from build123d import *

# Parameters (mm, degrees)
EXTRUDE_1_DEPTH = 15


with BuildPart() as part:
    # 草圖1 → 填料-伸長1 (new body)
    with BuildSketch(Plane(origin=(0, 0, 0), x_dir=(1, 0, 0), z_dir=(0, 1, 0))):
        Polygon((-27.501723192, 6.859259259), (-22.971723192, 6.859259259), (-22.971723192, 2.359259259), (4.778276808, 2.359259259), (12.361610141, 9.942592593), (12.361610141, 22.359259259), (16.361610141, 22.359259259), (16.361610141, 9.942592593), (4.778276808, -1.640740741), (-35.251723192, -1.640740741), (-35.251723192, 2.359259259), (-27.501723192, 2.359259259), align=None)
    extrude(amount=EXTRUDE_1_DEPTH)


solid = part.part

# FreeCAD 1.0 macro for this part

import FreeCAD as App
import Part
import Sketcher
from FreeCAD import Vector
Q = App.Units.Quantity

doc = App.newDocument("Part")
body = doc.addObject("PartDesign::Body", "Body")

sketch1 = doc.addObject("Sketcher::SketchObject", "Sketch")
body.addObject(sketch1)
sketch1.AttachmentSupport = (doc.XZ_Plane, [""])
sketch1.MapMode = "FlatFace"
sketch1.addGeometry([
    Part.LineSegment(Vector(-22.971723, -6.859259, 0), Vector(-27.501723, -6.859259, 0)),
    Part.LineSegment(Vector(-27.501723, -6.859259, 0), Vector(-27.501723, -2.359259, 0)),
    Part.LineSegment(Vector(-27.501723, -2.359259, 0), Vector(-35.251723, -2.359259, 0)),
    Part.LineSegment(Vector(-35.251723, -2.359259, 0), Vector(-35.251723, 1.640741, 0)),
    Part.LineSegment(Vector(-35.251723, 1.640741, 0), Vector(4.778277, 1.640741, 0)),
    Part.LineSegment(Vector(4.778277, 1.640741, 0), Vector(16.36161, -9.942593, 0)),
    Part.LineSegment(Vector(16.36161, -9.942593, 0), Vector(16.36161, -22.359259, 0)),
    Part.LineSegment(Vector(16.36161, -22.359259, 0), Vector(12.36161, -22.359259, 0)),
    Part.LineSegment(Vector(12.36161, -22.359259, 0), Vector(12.36161, -9.942593, 0)),
    Part.LineSegment(Vector(12.36161, -9.942593, 0), Vector(4.778277, -2.359259, 0)),
    Part.LineSegment(Vector(4.778277, -2.359259, 0), Vector(-22.971723, -2.359259, 0)),
    Part.LineSegment(Vector(-22.971723, -2.359259, 0), Vector(-22.971723, -6.859259, 0)),
], False)
sketch1.addConstraint([
    Sketcher.Constraint("Coincident", 0, 2, 1, 1),
    Sketcher.Constraint("Coincident", 1, 2, 2, 1),
    Sketcher.Constraint("Coincident", 2, 2, 3, 1),
    Sketcher.Constraint("Coincident", 3, 2, 4, 1),
    Sketcher.Constraint("Coincident", 4, 2, 5, 1),
    Sketcher.Constraint("Coincident", 5, 2, 6, 1),
    Sketcher.Constraint("Coincident", 6, 2, 7, 1),
    Sketcher.Constraint("Coincident", 7, 2, 8, 1),
    Sketcher.Constraint("Coincident", 8, 2, 9, 1),
    Sketcher.Constraint("Coincident", 9, 2, 10, 1),
    Sketcher.Constraint("Coincident", 10, 2, 11, 1),
    Sketcher.Constraint("Coincident", 11, 2, 0, 1),
    Sketcher.Constraint("Horizontal", 0),
    Sketcher.Constraint("Vertical", 1),
    Sketcher.Constraint("Horizontal", 2),
    Sketcher.Constraint("Vertical", 3),
    Sketcher.Constraint("Horizontal", 4),
    Sketcher.Constraint("Vertical", 6),
    Sketcher.Constraint("Horizontal", 7),
    Sketcher.Constraint("Vertical", 8),
    Sketcher.Constraint("Horizontal", 10),
    Sketcher.Constraint("Vertical", 11),
    Sketcher.Constraint("Parallel", 5, 9),
    Sketcher.Constraint("Horizontal", 5, 2, 8, 2),
    Sketcher.Constraint("Horizontal", 2, 2, 9, 2),
    Sketcher.Constraint("Vertical", 4, 2, 9, 2),
    Sketcher.Constraint("Equal", 7, 3),
    Sketcher.Constraint("DistanceX", 7, 2, 7, 1, Q("4 mm")),
    Sketcher.Constraint("DistanceY", 1, 1, 1, 2, Q("4.5 mm")),
    Sketcher.Constraint("DistanceY", 6, 2, 4, 2, Q("24 mm")),
    Sketcher.Constraint("DistanceX", 0, 2, 0, 1, Q("4.53 mm")),
    Sketcher.Constraint("DistanceX", 2, 2, 2, 1, Q("7.75 mm")),
    Sketcher.Constraint("DistanceX", 4, 1, 4, 2, Q("40.03 mm")),
    Sketcher.Constraint("DistanceY", 6, 2, 6, 1, Q("12.416667 mm")),
    Sketcher.Constraint("DistanceY", 0, 2, -1, 1, Q("6.859259 mm")),
    Sketcher.Constraint("DistanceX", -1, 1, 5, 2, Q("16.36161 mm")),
])
pad1 = doc.addObject("PartDesign::Pad", "Pad")
body.addObject(pad1)
pad1.Profile = sketch1
pad1.Length = 15
pad1.Reversed = True

doc.recompute()
